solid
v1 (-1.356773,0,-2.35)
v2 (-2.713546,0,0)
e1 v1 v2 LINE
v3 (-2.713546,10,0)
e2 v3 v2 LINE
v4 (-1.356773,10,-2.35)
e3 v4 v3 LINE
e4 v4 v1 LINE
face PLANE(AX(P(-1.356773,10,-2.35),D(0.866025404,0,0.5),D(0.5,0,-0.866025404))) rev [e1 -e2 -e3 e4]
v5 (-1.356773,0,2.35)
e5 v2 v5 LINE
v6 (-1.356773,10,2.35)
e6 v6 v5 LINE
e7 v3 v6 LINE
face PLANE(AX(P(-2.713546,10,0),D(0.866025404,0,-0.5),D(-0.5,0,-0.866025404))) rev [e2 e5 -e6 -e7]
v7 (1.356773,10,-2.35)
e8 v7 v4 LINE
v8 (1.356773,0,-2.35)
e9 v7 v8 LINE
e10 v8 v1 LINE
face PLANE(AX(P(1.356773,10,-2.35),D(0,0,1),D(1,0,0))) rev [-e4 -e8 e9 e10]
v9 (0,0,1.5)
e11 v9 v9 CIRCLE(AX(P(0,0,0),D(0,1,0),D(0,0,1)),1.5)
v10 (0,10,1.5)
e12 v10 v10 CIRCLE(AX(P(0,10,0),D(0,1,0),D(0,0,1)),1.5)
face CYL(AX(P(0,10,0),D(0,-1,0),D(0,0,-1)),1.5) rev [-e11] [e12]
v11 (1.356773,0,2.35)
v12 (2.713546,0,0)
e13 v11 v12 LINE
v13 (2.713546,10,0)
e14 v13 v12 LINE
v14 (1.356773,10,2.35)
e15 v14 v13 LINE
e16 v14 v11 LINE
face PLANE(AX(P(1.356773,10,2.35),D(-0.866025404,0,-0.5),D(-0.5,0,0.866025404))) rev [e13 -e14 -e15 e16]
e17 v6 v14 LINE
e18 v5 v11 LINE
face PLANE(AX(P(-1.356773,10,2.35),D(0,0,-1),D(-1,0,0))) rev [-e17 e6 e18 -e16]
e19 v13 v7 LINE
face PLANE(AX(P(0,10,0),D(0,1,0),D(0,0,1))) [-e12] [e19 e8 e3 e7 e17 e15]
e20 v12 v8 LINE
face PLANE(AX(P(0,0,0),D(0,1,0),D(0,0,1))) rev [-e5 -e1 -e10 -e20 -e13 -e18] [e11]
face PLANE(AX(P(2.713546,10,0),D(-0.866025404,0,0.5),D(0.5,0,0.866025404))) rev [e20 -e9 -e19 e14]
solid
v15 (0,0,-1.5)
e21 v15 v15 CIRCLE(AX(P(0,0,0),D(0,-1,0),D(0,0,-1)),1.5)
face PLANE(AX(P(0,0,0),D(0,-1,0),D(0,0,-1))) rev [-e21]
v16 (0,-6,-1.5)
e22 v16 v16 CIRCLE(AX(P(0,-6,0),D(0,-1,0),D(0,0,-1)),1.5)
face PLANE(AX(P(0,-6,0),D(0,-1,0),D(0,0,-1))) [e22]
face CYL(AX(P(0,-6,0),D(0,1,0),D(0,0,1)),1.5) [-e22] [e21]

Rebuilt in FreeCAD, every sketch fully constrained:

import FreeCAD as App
import Part
import Sketcher
from FreeCAD import Vector
Q = App.Units.Quantity


def add_polygon(sketch, points):
    """Adds a closed chain of lines whose ends are joined by coincident constraints."""
    first, n = sketch.GeometryCount, len(points)
    for a, b in zip(points, points[1:] + points[:1]):
        sketch.addGeometry(Part.LineSegment(App.Vector(*a, 0), App.Vector(*b, 0)), False)
    for i in range(n):
        sketch.addConstraint(Sketcher.Constraint("Coincident", first + i, 2, first + (i + 1) % n, 1))

doc = App.newDocument("Part")
body = doc.addObject("PartDesign::Body", "Body")

# Sketch on XZ plane
sketch1 = body.newObject("Sketcher::SketchObject", "Sketch")
sketch1.AttachmentSupport = (doc.getObject("XZ_Plane"), [""])
sketch1.MapMode = "FlatFace"
add_polygon(sketch1, [(2.7, 0), (1.4, -2.4), (-1.4, -2.4), (-2.7, 0), (-1.4, 2.4), (1.4, 2.4)])  # lines 0-5
sketch1.addGeometry(Part.Circle(Vector(0, 0, 0), Vector(0, 0, 1), 1.5), False)  # 6
sketch1.addConstraint([
    Sketcher.Constraint("Horizontal", 1),
    Sketcher.Constraint("Horizontal", 4),
    Sketcher.Constraint("Coincident", 6, 3, -1, 1),
    Sketcher.Constraint("Symmetric", 0, 2, 3, 2, -1, 1),
    Sketcher.Constraint("Symmetric", 2, 2, 5, 2, -1, 1),
    Sketcher.Constraint("PointOnObject", 2, 2, -1),
    Sketcher.Constraint("Parallel", 2, 5),
    Sketcher.Constraint("Vertical", 1, 2, 3, 2),
    Sketcher.Constraint("Diameter", 6, 3.0),
    Sketcher.Constraint("Angle", 0, Q("-120 deg")),
    Sketcher.Constraint("DistanceY", 1, 2, 3, 2, 4.7),
    Sketcher.Constraint("DistanceX", 1, 2, 1, 1, 2.713546),
])
pad1 = body.newObject("PartDesign::Pad", "Pad")
pad1.Profile = sketch1
pad1.Length = 10
pad1.Reversed = True
body2 = doc.addObject("PartDesign::Body", "Body001")

# Sketch on XZ plane
sketch2 = body2.newObject("Sketcher::SketchObject", "Sketch001")
sketch2.AttachmentSupport = (doc.getObject("XZ_Plane001"), [""])
sketch2.MapMode = "FlatFace"
sketch2.addGeometry(Part.Circle(Vector(0, 0, 0), Vector(0, 0, 1), 1.5), False)
sketch2.addConstraint([
    Sketcher.Constraint("Coincident", 0, 3, -1, 1),
    Sketcher.Constraint("Diameter", 0, 3.0),
])
pad2 = body2.newObject("PartDesign::Pad", "Pad001")
pad2.Profile = sketch2
pad2.Length = 6

doc.recompute()
